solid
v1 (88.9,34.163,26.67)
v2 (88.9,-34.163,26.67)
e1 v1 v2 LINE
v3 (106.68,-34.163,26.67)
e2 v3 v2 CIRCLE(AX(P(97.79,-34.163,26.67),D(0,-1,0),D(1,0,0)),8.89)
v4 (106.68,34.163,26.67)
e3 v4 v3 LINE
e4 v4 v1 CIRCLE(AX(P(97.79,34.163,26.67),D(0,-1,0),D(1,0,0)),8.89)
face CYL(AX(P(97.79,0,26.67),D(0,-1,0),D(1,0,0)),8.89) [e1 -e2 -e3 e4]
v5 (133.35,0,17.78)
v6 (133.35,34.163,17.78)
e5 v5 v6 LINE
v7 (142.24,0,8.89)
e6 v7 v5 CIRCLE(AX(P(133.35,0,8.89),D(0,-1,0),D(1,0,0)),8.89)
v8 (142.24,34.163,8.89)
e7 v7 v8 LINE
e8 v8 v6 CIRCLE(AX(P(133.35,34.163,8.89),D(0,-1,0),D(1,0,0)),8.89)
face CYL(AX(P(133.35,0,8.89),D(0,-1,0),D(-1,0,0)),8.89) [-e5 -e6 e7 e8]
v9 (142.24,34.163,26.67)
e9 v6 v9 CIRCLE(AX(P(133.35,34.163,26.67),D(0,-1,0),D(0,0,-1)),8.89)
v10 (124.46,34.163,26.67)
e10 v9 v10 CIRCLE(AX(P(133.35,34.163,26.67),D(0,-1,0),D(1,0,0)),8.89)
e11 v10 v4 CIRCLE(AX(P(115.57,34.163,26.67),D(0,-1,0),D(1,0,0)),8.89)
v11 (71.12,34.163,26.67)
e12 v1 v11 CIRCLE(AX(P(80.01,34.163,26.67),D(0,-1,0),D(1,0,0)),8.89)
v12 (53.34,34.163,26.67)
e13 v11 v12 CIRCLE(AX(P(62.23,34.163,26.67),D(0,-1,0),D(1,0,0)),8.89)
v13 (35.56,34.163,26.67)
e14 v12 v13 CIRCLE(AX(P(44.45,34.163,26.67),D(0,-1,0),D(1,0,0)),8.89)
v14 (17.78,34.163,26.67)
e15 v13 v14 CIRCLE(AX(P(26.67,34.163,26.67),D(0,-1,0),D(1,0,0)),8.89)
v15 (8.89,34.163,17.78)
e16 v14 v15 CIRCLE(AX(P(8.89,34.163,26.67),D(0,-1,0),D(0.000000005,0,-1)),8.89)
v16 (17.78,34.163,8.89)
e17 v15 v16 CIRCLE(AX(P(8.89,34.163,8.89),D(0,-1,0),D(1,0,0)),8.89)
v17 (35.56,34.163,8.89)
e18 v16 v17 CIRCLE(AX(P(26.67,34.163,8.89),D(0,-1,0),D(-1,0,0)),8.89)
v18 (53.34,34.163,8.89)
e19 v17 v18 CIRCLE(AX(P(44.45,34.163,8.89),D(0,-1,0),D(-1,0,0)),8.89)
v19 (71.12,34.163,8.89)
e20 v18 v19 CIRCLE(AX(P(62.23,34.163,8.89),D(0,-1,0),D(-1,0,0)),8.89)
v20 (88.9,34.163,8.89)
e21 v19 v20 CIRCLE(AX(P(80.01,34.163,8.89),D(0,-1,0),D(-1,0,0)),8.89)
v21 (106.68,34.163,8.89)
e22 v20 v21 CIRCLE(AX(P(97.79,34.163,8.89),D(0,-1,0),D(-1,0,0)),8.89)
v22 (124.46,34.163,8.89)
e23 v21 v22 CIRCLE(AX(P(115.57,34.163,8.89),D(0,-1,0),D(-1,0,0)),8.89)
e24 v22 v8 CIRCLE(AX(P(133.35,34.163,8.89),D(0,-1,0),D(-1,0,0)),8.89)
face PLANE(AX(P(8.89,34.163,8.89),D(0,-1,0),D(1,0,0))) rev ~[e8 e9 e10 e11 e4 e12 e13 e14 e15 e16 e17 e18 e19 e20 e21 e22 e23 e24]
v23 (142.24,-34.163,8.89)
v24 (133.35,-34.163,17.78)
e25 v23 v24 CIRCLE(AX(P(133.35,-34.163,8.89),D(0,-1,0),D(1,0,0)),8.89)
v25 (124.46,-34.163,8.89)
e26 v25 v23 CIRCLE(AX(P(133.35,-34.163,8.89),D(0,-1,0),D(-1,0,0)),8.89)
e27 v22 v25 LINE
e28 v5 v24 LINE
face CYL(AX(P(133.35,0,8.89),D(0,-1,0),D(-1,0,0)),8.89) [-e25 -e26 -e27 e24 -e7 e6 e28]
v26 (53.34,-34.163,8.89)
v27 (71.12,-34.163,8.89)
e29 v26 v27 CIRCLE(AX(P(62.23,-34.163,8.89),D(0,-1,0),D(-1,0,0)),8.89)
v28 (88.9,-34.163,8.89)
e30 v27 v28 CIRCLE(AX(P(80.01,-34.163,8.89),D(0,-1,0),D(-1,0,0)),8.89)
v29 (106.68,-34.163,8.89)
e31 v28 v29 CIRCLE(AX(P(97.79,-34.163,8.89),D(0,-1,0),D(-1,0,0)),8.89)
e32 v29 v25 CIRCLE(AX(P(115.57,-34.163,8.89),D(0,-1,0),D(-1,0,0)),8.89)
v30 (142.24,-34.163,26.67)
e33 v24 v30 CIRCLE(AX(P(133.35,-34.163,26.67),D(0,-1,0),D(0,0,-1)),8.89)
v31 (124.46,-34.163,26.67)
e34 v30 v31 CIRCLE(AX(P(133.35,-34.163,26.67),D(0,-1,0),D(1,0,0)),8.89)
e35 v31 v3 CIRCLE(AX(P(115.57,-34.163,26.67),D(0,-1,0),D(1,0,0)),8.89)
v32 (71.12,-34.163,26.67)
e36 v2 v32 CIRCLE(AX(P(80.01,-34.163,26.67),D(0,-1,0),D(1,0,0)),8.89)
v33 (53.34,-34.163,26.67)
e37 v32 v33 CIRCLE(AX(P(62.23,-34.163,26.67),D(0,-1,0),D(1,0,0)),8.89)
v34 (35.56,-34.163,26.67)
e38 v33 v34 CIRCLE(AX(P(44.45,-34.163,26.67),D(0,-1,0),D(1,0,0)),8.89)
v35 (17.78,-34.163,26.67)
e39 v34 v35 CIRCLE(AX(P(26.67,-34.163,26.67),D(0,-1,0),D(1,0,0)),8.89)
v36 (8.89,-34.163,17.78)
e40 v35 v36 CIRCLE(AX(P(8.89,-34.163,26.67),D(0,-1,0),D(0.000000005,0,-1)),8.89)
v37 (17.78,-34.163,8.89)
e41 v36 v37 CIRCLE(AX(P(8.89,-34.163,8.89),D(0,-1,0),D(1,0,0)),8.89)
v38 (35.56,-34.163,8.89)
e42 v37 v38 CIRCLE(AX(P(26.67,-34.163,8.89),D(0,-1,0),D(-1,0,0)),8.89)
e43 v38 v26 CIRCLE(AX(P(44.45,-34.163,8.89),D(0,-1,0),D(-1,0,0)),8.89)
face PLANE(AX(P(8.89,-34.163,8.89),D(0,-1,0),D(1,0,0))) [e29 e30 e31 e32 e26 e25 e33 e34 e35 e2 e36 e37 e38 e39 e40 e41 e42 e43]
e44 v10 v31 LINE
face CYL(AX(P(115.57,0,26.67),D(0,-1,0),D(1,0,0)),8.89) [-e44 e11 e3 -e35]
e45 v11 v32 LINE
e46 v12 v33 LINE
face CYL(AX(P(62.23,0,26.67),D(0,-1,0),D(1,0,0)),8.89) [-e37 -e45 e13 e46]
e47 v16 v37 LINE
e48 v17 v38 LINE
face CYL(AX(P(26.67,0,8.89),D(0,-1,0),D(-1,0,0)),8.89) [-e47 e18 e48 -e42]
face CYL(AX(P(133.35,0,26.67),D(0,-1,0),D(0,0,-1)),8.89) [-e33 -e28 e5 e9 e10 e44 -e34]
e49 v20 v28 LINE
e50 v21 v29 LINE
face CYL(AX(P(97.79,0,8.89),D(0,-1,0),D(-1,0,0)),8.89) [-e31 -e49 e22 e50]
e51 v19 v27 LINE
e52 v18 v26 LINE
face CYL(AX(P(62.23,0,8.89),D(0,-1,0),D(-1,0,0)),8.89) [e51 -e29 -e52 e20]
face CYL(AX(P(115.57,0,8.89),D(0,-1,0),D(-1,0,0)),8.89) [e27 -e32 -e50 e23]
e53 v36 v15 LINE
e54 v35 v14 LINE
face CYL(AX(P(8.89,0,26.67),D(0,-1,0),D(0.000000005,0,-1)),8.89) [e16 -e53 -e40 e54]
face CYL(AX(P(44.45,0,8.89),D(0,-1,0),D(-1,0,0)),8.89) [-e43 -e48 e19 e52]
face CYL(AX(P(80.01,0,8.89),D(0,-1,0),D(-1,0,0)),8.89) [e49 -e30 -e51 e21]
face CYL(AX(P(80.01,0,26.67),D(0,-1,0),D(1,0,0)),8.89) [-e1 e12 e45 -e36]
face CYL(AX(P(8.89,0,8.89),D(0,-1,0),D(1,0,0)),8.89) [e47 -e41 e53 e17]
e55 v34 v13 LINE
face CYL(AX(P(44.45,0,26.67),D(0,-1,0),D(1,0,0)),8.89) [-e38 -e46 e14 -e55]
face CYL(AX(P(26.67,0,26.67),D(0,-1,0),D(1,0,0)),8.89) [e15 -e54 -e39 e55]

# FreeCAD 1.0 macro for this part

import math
import FreeCAD as App
import Part
import Sketcher

V = App.Vector
Q = App.Units.Quantity

doc = App.newDocument("Part")
body = doc.addObject("PartDesign::Body", "Body")

sketch1 = body.newObject("Sketcher::SketchObject", "Sketch")
sketch1.AttachmentSupport = (doc.getObject("XZ_Plane"), [""])
sketch1.MapMode = "FlatFace"
sketch1.addGeometry(Part.ArcOfCircle(Part.Circle(V(9, 9, 0), V(0, 0, 1), 9), math.radians(90), math.radians(360)), False)
sketch1.addGeometry(Part.ArcOfCircle(Part.Circle(V(27, 9, 0), V(0, 0, 1), 9), math.radians(180), math.radians(360)), False)
sketch1.addGeometry(Part.ArcOfCircle(Part.Circle(V(44, 9, 0), V(0, 0, 1), 9), math.radians(180), math.radians(360)), False)
sketch1.addGeometry(Part.ArcOfCircle(Part.Circle(V(62, 9, 0), V(0, 0, 1), 9), math.radians(180), math.radians(360)), False)
sketch1.addGeometry(Part.ArcOfCircle(Part.Circle(V(80, 9, 0), V(0, 0, 1), 9), math.radians(180), math.radians(360)), False)
sketch1.addGeometry(Part.ArcOfCircle(Part.Circle(V(98, 9, 0), V(0, 0, 1), 9), math.radians(180), math.radians(360)), False)
sketch1.addGeometry(Part.ArcOfCircle(Part.Circle(V(116, 9, 0), V(0, 0, 1), 9), math.radians(180), math.radians(360)), False)
sketch1.addGeometry(Part.ArcOfCircle(Part.Circle(V(133, 9, 0), V(0, 0, 1), 9), math.radians(180), math.radians(360)), False)
sketch1.addGeometry(Part.ArcOfCircle(Part.Circle(V(133, 9, 0), V(0, 0, 1), 9), math.radians(0), math.radians(90)), False)
sketch1.addGeometry(Part.ArcOfCircle(Part.Circle(V(133, 27, 0), V(0, 0, 1), 9), math.radians(-90), math.radians(0)), False)
sketch1.addGeometry(Part.ArcOfCircle(Part.Circle(V(133, 27, 0), V(0, 0, 1), 9), math.radians(0), math.radians(180)), False)
sketch1.addGeometry(Part.ArcOfCircle(Part.Circle(V(116, 27, 0), V(0, 0, 1), 9), math.radians(0), math.radians(180)), False)
sketch1.addGeometry(Part.ArcOfCircle(Part.Circle(V(98, 27, 0), V(0, 0, 1), 9), math.radians(0), math.radians(180)), False)
sketch1.addGeometry(Part.ArcOfCircle(Part.Circle(V(80, 27, 0), V(0, 0, 1), 9), math.radians(0), math.radians(180)), False)
sketch1.addGeometry(Part.ArcOfCircle(Part.Circle(V(62, 27, 0), V(0, 0, 1), 9), math.radians(0), math.radians(180)), False)
sketch1.addGeometry(Part.ArcOfCircle(Part.Circle(V(44, 27, 0), V(0, 0, 1), 9), math.radians(0), math.radians(180)), False)
sketch1.addGeometry(Part.ArcOfCircle(Part.Circle(V(27, 27, 0), V(0, 0, 1), 9), math.radians(0), math.radians(180)), False)
sketch1.addGeometry(Part.ArcOfCircle(Part.Circle(V(9, 27, 0), V(0, 0, 1), 9), math.radians(0), math.radians(270)), False)
sketch1.addConstraint(Sketcher.Constraint("Tangent", 0, 2, 1, 1))
sketch1.addConstraint(Sketcher.Constraint("Tangent", 1, 2, 2, 1))
sketch1.addConstraint(Sketcher.Constraint("Tangent", 2, 2, 3, 1))
sketch1.addConstraint(Sketcher.Constraint("Tangent", 3, 2, 4, 1))
sketch1.addConstraint(Sketcher.Constraint("Tangent", 4, 2, 5, 1))
sketch1.addConstraint(Sketcher.Constraint("Tangent", 5, 2, 6, 1))
sketch1.addConstraint(Sketcher.Constraint("Tangent", 6, 2, 7, 1))
sketch1.addConstraint(Sketcher.Constraint("Tangent", 7, 2, 8, 1))
sketch1.addConstraint(Sketcher.Constraint("Tangent", 8, 2, 9, 1))
sketch1.addConstraint(Sketcher.Constraint("Tangent", 9, 2, 10, 1))
sketch1.addConstraint(Sketcher.Constraint("Tangent", 10, 2, 11, 1))
sketch1.addConstraint(Sketcher.Constraint("Tangent", 11, 2, 12, 1))
sketch1.addConstraint(Sketcher.Constraint("Tangent", 12, 2, 13, 1))
sketch1.addConstraint(Sketcher.Constraint("Tangent", 13, 2, 14, 1))
sketch1.addConstraint(Sketcher.Constraint("Tangent", 14, 2, 15, 1))
sketch1.addConstraint(Sketcher.Constraint("Tangent", 15, 2, 16, 1))
sketch1.addConstraint(Sketcher.Constraint("Tangent", 16, 2, 17, 1))
sketch1.addConstraint(Sketcher.Constraint("Tangent", 17, 2, 0, 1))
sketch1.addConstraint(Sketcher.Constraint("Equal", 0, 1))
sketch1.addConstraint(Sketcher.Constraint("Equal", 1, 2))
sketch1.addConstraint(Sketcher.Constraint("Equal", 2, 3))
sketch1.addConstraint(Sketcher.Constraint("Equal", 3, 4))
sketch1.addConstraint(Sketcher.Constraint("Equal", 4, 5))
sketch1.addConstraint(Sketcher.Constraint("Equal", 5, 6))
sketch1.addConstraint(Sketcher.Constraint("Equal", 6, 7))
sketch1.addConstraint(Sketcher.Constraint("Equal", 7, 8))
sketch1.addConstraint(Sketcher.Constraint("Equal", 8, 9))
sketch1.addConstraint(Sketcher.Constraint("Equal", 9, 10))
sketch1.addConstraint(Sketcher.Constraint("Equal", 10, 11))
sketch1.addConstraint(Sketcher.Constraint("Equal", 11, 12))
sketch1.addConstraint(Sketcher.Constraint("Equal", 12, 13))
sketch1.addConstraint(Sketcher.Constraint("Equal", 13, 14))
sketch1.addConstraint(Sketcher.Constraint("Equal", 14, 15))
sketch1.addConstraint(Sketcher.Constraint("Equal", 15, 16))
sketch1.addConstraint(Sketcher.Constraint("Equal", 16, 17))
sketch1.addConstraint(Sketcher.Constraint("Horizontal", 0, 3, 1, 3))
sketch1.addConstraint(Sketcher.Constraint("Horizontal", 1, 3, 2, 3))
sketch1.addConstraint(Sketcher.Constraint("Horizontal", 2, 3, 3, 3))
sketch1.addConstraint(Sketcher.Constraint("Horizontal", 3, 3, 4, 3))
sketch1.addConstraint(Sketcher.Constraint("Horizontal", 4, 3, 5, 3))
sketch1.addConstraint(Sketcher.Constraint("Horizontal", 5, 3, 6, 3))
sketch1.addConstraint(Sketcher.Constraint("Horizontal", 6, 3, 7, 3))
sketch1.addConstraint(Sketcher.Constraint("Horizontal", 10, 3, 11, 3))
sketch1.addConstraint(Sketcher.Constraint("Horizontal", 11, 3, 12, 3))
sketch1.addConstraint(Sketcher.Constraint("Horizontal", 12, 3, 13, 3))
sketch1.addConstraint(Sketcher.Constraint("Horizontal", 13, 3, 14, 3))
sketch1.addConstraint(Sketcher.Constraint("Horizontal", 14, 3, 15, 3))
sketch1.addConstraint(Sketcher.Constraint("Horizontal", 15, 3, 16, 3))
sketch1.addConstraint(Sketcher.Constraint("Horizontal", 6, 2, 7, 2))
sketch1.addConstraint(Sketcher.Constraint("Horizontal", 17, 3, 9, 2))
sketch1.addConstraint(Sketcher.Constraint("Vertical", 8, 3, 9, 3))
sketch1.addConstraint(Sketcher.Constraint("Radius", 0, Q("0.35 in")))
sketch1.addConstraint(Sketcher.Constraint("DistanceX", -1, 1, 0, 2, Q("0.7 in")))
sketch1.addConstraint(Sketcher.Constraint("DistanceY", -1, 1, 8, 2, Q("0.7 in")))
pad1 = body.newObject("PartDesign::Pad", "Pad")
pad1.Profile = sketch1
pad1.Length = Q("2.69 in")
pad1.Midplane = True

doc.recompute()
